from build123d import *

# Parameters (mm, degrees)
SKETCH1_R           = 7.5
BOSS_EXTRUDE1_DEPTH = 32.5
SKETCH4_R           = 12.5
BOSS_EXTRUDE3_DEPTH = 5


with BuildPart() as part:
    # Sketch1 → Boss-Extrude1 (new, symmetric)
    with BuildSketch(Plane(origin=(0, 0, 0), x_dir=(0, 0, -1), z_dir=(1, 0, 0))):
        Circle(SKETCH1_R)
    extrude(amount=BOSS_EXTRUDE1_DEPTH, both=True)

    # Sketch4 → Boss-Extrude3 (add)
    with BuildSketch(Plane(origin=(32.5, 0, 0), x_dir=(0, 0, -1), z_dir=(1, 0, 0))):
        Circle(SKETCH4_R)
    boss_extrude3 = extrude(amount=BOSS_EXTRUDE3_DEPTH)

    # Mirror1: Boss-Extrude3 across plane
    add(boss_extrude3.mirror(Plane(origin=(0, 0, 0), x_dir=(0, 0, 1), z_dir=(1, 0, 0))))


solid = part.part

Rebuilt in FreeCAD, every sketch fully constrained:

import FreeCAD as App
import Part
import Sketcher
from FreeCAD import Vector
Q = App.Units.Quantity

doc = App.newDocument("Part")
body = doc.addObject("PartDesign::Body", "Body")

sketch1 = body.newObject("Sketcher::SketchObject", "Sketch")
sketch1.AttachmentSupport = (doc.getObject("YZ_Plane"), [""])
sketch1.MapMode = "FlatFace"
sketch1.addGeometry(Part.Circle(Vector(0, 0, 0), Vector(0, 0, 1), 7.5), False)
sketch1.addConstraint([
    Sketcher.Constraint("Coincident", 0, 3, -1, 1),
    Sketcher.Constraint("Diameter", 0, Q("15 mm")),
])
pad1 = body.newObject("PartDesign::Pad", "Pad")
pad1.Profile = sketch1
pad1.Length = 65
pad1.Midplane = True

sketch2 = body.newObject("Sketcher::SketchObject", "Sketch001")
sketch2.AttachmentSupport = (doc.getObject("YZ_Plane"), [""])
sketch2.MapMode = "FlatFace"
sketch2.AttachmentOffset = App.Placement(Vector(0, 0, 32.5), App.Rotation())
sketch2.addGeometry(Part.Circle(Vector(0, 0, 0), Vector(0, 0, 1), 12.5), False)
sketch2.addConstraint([
    Sketcher.Constraint("Coincident", 0, 3, -1, 1),
    Sketcher.Constraint("Diameter", 0, Q("25 mm")),
])
pad2 = body.newObject("PartDesign::Pad", "Pad001")
pad2.Profile = sketch2
pad2.Length = 5
doc.recompute()

mirrored = body.newObject("PartDesign::Mirrored", "Mirrored")
mirrored.Originals = [pad2]
mirrored.MirrorPlane = (doc.getObject("YZ_Plane"), [""])
body.Tip = mirrored

doc.recompute()
